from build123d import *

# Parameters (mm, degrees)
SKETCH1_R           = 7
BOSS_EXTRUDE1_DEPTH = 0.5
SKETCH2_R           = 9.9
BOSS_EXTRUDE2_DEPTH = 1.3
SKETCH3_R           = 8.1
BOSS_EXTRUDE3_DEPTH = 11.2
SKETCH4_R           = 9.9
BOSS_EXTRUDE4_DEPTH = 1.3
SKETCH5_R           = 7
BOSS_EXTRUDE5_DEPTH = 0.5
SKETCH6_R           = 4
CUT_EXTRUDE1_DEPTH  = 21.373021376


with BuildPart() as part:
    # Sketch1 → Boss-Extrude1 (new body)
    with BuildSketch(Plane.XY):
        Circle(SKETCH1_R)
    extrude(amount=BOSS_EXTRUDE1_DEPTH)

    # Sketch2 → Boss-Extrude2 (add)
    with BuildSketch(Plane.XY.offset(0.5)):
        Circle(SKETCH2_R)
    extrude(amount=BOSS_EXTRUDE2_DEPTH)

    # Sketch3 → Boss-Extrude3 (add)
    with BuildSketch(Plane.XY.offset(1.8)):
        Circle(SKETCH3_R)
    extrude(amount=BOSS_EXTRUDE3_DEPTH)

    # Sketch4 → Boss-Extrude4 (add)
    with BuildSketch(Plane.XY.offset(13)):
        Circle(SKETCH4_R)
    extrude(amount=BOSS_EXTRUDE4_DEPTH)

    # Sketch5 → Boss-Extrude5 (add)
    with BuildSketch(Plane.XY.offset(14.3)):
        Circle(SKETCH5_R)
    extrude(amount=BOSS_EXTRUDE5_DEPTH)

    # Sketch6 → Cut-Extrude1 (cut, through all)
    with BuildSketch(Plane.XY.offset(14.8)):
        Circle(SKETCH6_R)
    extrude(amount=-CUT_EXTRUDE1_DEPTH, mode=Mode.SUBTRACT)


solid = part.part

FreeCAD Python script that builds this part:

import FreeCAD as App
import Part
import Sketcher
from FreeCAD import Vector

doc = App.newDocument("Part")
body = doc.addObject("PartDesign::Body", "Body")

sketch1 = body.newObject("Sketcher::SketchObject", "Sketch")
sketch1.AttachmentSupport = (doc.getObject("XY_Plane"), [""])
sketch1.MapMode = "FlatFace"
sketch1.addGeometry(Part.Circle(Vector(0, 0, 0), Vector(0, 0, 1), 7), False)
sketch1.addConstraint(Sketcher.Constraint("Coincident", 0, 3, -1, 1))
sketch1.addConstraint(Sketcher.Constraint("Diameter", 0, 14.0))
pad1 = body.newObject("PartDesign::Pad", "Pad")
pad1.Profile = sketch1
pad1.Length = 0.5

sketch2 = body.newObject("Sketcher::SketchObject", "Sketch001")
sketch2.AttachmentSupport = (doc.getObject("XY_Plane"), [""])
sketch2.MapMode = "FlatFace"
sketch2.AttachmentOffset = App.Placement(Vector(0, 0, 0.5), App.Rotation())
sketch2.addGeometry(Part.Circle(Vector(0, 0, 0), Vector(0, 0, 1), 10), False)
sketch2.addConstraint(Sketcher.Constraint("Coincident", 0, 3, -1, 1))
sketch2.addConstraint(Sketcher.Constraint("Diameter", 0, 19.8))
pad2 = body.newObject("PartDesign::Pad", "Pad001")
pad2.Profile = sketch2
pad2.Length = 1.3

sketch3 = body.newObject("Sketcher::SketchObject", "Sketch002")
sketch3.AttachmentSupport = (doc.getObject("XY_Plane"), [""])
sketch3.MapMode = "FlatFace"
sketch3.AttachmentOffset = App.Placement(Vector(0, 0, 1.8), App.Rotation())
sketch3.addGeometry(Part.Circle(Vector(0, 0, 0), Vector(0, 0, 1), 8), False)
sketch3.addConstraint(Sketcher.Constraint("Coincident", 0, 3, -1, 1))
sketch3.addConstraint(Sketcher.Constraint("Diameter", 0, 16.2))
pad3 = body.newObject("PartDesign::Pad", "Pad002")
pad3.Profile = sketch3
pad3.Length = 11.2

sketch4 = body.newObject("Sketcher::SketchObject", "Sketch003")
sketch4.AttachmentSupport = (doc.getObject("XY_Plane"), [""])
sketch4.MapMode = "FlatFace"
sketch4.AttachmentOffset = App.Placement(Vector(0, 0, 13), App.Rotation())
sketch4.addGeometry(Part.Circle(Vector(0, 0, 0), Vector(0, 0, 1), 10), False)
sketch4.addConstraint(Sketcher.Constraint("Coincident", 0, 3, -1, 1))
sketch4.addConstraint(Sketcher.Constraint("Diameter", 0, 19.8))
pad4 = body.newObject("PartDesign::Pad", "Pad003")
pad4.Profile = sketch4
pad4.Length = 1.3

sketch5 = body.newObject("Sketcher::SketchObject", "Sketch004")
sketch5.AttachmentSupport = (doc.getObject("XY_Plane"), [""])
sketch5.MapMode = "FlatFace"
sketch5.AttachmentOffset = App.Placement(Vector(0, 0, 14.3), App.Rotation())
sketch5.addGeometry(Part.Circle(Vector(0, 0, 0), Vector(0, 0, 1), 7), False)
sketch5.addConstraint(Sketcher.Constraint("Coincident", 0, 3, -1, 1))
sketch5.addConstraint(Sketcher.Constraint("Diameter", 0, 14.0))
pad5 = body.newObject("PartDesign::Pad", "Pad004")
pad5.Profile = sketch5
pad5.Length = 0.5

sketch6 = body.newObject("Sketcher::SketchObject", "Sketch005")
sketch6.AttachmentSupport = (doc.getObject("XY_Plane"), [""])
sketch6.MapMode = "FlatFace"
sketch6.AttachmentOffset = App.Placement(Vector(0, 0, 14.8), App.Rotation())
sketch6.addGeometry(Part.Circle(Vector(0, 0, 0), Vector(0, 0, 1), 4), False)
sketch6.addConstraint(Sketcher.Constraint("Coincident", 0, 3, -1, 1))
sketch6.addConstraint(Sketcher.Constraint("Diameter", 0, 8.0))
pocket1 = body.newObject("PartDesign::Pocket", "Pocket")
pocket1.Profile = sketch6
pocket1.Type = "ThroughAll"

doc.recompute()
